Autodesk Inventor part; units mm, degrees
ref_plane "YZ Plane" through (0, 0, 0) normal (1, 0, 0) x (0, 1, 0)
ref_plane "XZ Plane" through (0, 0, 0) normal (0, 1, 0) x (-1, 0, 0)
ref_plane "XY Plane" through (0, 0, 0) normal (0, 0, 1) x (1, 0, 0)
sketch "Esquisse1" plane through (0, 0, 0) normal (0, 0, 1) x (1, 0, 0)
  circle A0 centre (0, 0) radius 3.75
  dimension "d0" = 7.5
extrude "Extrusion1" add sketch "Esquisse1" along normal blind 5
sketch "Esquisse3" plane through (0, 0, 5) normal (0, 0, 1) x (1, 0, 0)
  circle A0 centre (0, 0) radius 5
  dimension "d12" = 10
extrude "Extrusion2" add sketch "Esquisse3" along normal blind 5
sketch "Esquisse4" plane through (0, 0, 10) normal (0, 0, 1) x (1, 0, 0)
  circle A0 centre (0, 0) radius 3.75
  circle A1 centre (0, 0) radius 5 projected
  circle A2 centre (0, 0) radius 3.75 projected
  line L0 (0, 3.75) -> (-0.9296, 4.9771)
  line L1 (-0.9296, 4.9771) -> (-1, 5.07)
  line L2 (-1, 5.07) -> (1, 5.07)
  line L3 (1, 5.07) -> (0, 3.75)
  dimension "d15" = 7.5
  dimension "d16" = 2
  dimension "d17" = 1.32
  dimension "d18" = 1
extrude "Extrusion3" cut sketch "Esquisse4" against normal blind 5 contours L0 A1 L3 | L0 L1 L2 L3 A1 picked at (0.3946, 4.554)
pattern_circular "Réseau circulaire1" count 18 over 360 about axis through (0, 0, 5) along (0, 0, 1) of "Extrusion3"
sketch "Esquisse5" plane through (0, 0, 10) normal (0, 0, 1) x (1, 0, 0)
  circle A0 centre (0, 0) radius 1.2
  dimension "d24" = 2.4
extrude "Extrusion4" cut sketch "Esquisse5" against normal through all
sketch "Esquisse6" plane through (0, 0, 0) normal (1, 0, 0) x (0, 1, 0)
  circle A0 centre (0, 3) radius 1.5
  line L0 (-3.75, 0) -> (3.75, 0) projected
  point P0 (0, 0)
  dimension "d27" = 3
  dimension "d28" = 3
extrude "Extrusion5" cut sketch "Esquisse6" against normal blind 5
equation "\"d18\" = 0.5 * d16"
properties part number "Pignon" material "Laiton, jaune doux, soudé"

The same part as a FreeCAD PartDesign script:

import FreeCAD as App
import Part
import Sketcher

V = App.Vector

doc = App.newDocument("Part")
body = doc.addObject("PartDesign::Body", "Body")

sketch1 = body.newObject("Sketcher::SketchObject", "Sketch")
sketch1.AttachmentSupport = (doc.getObject("XY_Plane"), [""])
sketch1.MapMode = "FlatFace"
sketch1.addGeometry(Part.Circle(V(0, 0, 0), V(0, 0, 1), 3.8), False)
sketch1.addConstraint([
    Sketcher.Constraint("Coincident", 0, 3, -1, 1),
    Sketcher.Constraint("Diameter", 0, 7.5),
])
pad1 = body.newObject("PartDesign::Pad", "Pad")
pad1.Profile = sketch1
pad1.Length = 5

sketch2 = body.newObject("Sketcher::SketchObject", "Sketch001")
sketch2.AttachmentSupport = (doc.getObject("XY_Plane"), [""])
sketch2.MapMode = "FlatFace"
sketch2.AttachmentOffset = App.Placement(V(0, 0, 5), App.Rotation())
sketch2.addGeometry(Part.Circle(V(0, 0, 0), V(0, 0, 1), 5), False)
sketch2.addConstraint([
    Sketcher.Constraint("Coincident", 0, 3, -1, 1),
    Sketcher.Constraint("Diameter", 0, 10.0),
])
pad2 = body.newObject("PartDesign::Pad", "Pad001")
pad2.Profile = sketch2
pad2.Length = 5

sketch3 = body.newObject("Sketcher::SketchObject", "Sketch002")
sketch3.AttachmentSupport = (doc.getObject("XY_Plane"), [""])
sketch3.MapMode = "FlatFace"
sketch3.AttachmentOffset = App.Placement(V(0, 0, 10), App.Rotation())
sketch3.addGeometry([
    Part.LineSegment(V(0, 3.75, 0), V(1, 5.07, 0)),
    Part.LineSegment(V(1, 5.07, 0), V(-1, 5.07, 0)),
    Part.LineSegment(V(-1, 5.07, 0), V(-0.93, 4.98, 0)),
    Part.LineSegment(V(-0.93, 4.98, 0), V(0, 3.75, 0)),
], False)
sketch3.addConstraint([
    Sketcher.Constraint("Coincident", 0, 2, 1, 1),
    Sketcher.Constraint("Coincident", 1, 2, 2, 1),
    Sketcher.Constraint("Coincident", 2, 2, 3, 1),
    Sketcher.Constraint("Coincident", 3, 2, 0, 1),
    Sketcher.Constraint("Horizontal", 1),
    Sketcher.Constraint("PointOnObject", 3, 2, -2),
    Sketcher.Constraint("Parallel", 2, 3),
    Sketcher.Constraint("DistanceX", 1, 2, 1, 1, 2.0),
    Sketcher.Constraint("DistanceX", -1, 1, 0, 2, 1.0),
    Sketcher.Constraint("DistanceY", 3, 2, 0, 2, 1.32),
    Sketcher.Constraint("DistanceY", -1, 1, 0, 2, 5.07),
    Sketcher.Constraint("DistanceY", -1, 1, 2, 2, 4.977),
])
pocket1 = body.newObject("PartDesign::Pocket", "Pocket")
pocket1.Profile = sketch3
pocket1.Length = 5
doc.recompute()

polarpattern = body.newObject("PartDesign::PolarPattern", "PolarPattern")
polarpattern.Originals = [pocket1]
polarpattern.Axis = (doc.getObject("Z_Axis"), [""])
polarpattern.Angle = 360
polarpattern.Occurrences = 18
body.Tip = polarpattern

sketch4 = body.newObject("Sketcher::SketchObject", "Sketch003")
sketch4.AttachmentSupport = (doc.getObject("XY_Plane"), [""])
sketch4.MapMode = "FlatFace"
sketch4.AttachmentOffset = App.Placement(V(0, 0, 10), App.Rotation())
sketch4.addGeometry(Part.Circle(V(0, 0, 0), V(0, 0, 1), 1.2), False)
sketch4.addConstraint([
    Sketcher.Constraint("Coincident", 0, 3, -1, 1),
    Sketcher.Constraint("Diameter", 0, 2.4),
])
pocket2 = body.newObject("PartDesign::Pocket", "Pocket001")
pocket2.Profile = sketch4
pocket2.Type = "ThroughAll"

sketch5 = body.newObject("Sketcher::SketchObject", "Sketch004")
sketch5.AttachmentSupport = (doc.getObject("YZ_Plane"), [""])
sketch5.MapMode = "FlatFace"
sketch5.addGeometry(Part.Circle(V(0, 3, 0), V(0, 0, 1), 1.5), False)
sketch5.addConstraint([
    Sketcher.Constraint("PointOnObject", 0, 3, -2),
    Sketcher.Constraint("Diameter", 0, 3.0),
    Sketcher.Constraint("DistanceY", -1, 1, 0, 3, 3.0),
])
pocket3 = body.newObject("PartDesign::Pocket", "Pocket002")
pocket3.Profile = sketch5
pocket3.Length = 5

doc.recompute()
